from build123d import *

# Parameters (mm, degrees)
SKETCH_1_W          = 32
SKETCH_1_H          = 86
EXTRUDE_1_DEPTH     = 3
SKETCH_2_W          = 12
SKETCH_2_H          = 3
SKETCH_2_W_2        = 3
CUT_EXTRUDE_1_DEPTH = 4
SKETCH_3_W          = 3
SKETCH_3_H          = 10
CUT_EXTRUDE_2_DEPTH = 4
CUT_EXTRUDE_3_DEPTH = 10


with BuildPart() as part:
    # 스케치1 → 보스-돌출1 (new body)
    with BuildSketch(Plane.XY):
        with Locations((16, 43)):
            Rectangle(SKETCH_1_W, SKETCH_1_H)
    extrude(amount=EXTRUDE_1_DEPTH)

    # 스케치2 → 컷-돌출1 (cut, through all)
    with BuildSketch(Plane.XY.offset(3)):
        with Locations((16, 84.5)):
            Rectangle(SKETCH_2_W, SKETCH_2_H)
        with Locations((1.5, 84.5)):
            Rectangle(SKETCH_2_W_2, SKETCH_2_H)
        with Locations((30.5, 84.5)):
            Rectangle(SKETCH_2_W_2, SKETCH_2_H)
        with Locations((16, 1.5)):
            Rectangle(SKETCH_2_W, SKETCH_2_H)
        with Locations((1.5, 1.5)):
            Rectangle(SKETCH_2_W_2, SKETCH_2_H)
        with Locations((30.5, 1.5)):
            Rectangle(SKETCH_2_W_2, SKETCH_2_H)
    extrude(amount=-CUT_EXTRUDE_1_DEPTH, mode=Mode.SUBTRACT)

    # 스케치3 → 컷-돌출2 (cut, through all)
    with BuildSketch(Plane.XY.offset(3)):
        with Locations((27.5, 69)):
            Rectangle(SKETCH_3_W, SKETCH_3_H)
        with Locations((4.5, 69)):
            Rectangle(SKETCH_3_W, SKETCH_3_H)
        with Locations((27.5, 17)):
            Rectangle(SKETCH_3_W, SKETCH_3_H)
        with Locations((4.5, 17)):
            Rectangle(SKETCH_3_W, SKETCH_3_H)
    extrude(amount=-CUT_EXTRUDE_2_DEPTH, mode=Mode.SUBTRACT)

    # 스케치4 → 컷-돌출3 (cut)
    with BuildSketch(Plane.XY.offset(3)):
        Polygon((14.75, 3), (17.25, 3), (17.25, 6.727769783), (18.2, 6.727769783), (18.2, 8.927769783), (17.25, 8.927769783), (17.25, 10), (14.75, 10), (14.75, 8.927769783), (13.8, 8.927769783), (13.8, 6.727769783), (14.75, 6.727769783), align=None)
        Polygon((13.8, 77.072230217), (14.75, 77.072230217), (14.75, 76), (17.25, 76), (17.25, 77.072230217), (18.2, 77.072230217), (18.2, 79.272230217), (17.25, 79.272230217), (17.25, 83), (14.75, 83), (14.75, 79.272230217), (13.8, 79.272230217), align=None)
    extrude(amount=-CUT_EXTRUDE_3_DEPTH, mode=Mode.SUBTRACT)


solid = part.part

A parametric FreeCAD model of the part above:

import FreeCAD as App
import Part
import Sketcher

doc = App.newDocument("Part")
params = doc.addObject("Spreadsheet::Sheet", "Params")
for row, (alias, value) in enumerate([
    ("sketch1_width", "32 mm"),
    ("sketch1_height", "86 mm"),
    ("pad1_length", "3 mm"),
    ("sketch2_width", "12 mm"),
    ("sketch2_width2", "3 mm"),
    ("sketch3_width", "3 mm"),
    ("sketch3_height", "10 mm"),
    ("sketch4_width", "2.5 mm"),
    ("sketch4_height", "2.2 mm"),
    ("sketch4_width2", "0.95 mm"),
    ("pocket3_length", "10 mm"),
], start=1):
    params.set(f"A{row}", alias)
    params.set(f"B{row}", "=" + value)
    params.setAlias(f"B{row}", alias)

body = doc.addObject("PartDesign::Body", "Body")

sketch1 = body.newObject("Sketcher::SketchObject", "Sketch")
sketch1.AttachmentSupport = (doc.getObject("XY_Plane"), [""])
sketch1.MapMode = "FlatFace"
sketch1.addGeometry([
    Part.LineSegment(App.Vector(0, 86, 0), App.Vector(0, 0, 0)),
    Part.LineSegment(App.Vector(0, 0, 0), App.Vector(32, 0, 0)),
    Part.LineSegment(App.Vector(32, 0, 0), App.Vector(32, 86, 0)),
    Part.LineSegment(App.Vector(32, 86, 0), App.Vector(0, 86, 0)),
], False)
sketch1.addConstraint([
    Sketcher.Constraint("Coincident", 0, 2, 1, 1),
    Sketcher.Constraint("Coincident", 1, 2, 2, 1),
    Sketcher.Constraint("Coincident", 2, 2, 3, 1),
    Sketcher.Constraint("Coincident", 3, 2, 0, 1),
    Sketcher.Constraint("Vertical", 0),
    Sketcher.Constraint("Horizontal", 1),
    Sketcher.Constraint("Vertical", 2),
    Sketcher.Constraint("Horizontal", 3),
    Sketcher.Constraint("Coincident", 0, 2, -1, 1),
    Sketcher.Constraint("DistanceX", 1, 1, 1, 2, 32.0),
    Sketcher.Constraint("DistanceY", 0, 2, 0, 1, 86.0),
])
sketch1.setExpression("Constraints[9]", "Params.sketch1_width")
sketch1.setExpression("Constraints[10]", "Params.sketch1_height")
pad1 = body.newObject("PartDesign::Pad", "Pad")
pad1.Profile = sketch1
pad1.setExpression("Length", "Params.pad1_length")

sketch2 = body.newObject("Sketcher::SketchObject", "Sketch001")
sketch2.AttachmentSupport = (doc.getObject("XY_Plane"), [""])
sketch2.MapMode = "FlatFace"
sketch2.AttachmentOffset = App.Placement(App.Vector(0, 0, 3), App.Rotation())
sketch2.addGeometry([
    Part.LineSegment(App.Vector(10, 86, 0), App.Vector(10, 83, 0)),
    Part.LineSegment(App.Vector(10, 83, 0), App.Vector(22, 83, 0)),
    Part.LineSegment(App.Vector(22, 83, 0), App.Vector(22, 86, 0)),
    Part.LineSegment(App.Vector(22, 86, 0), App.Vector(10, 86, 0)),
    Part.LineSegment(App.Vector(0, 86, 0), App.Vector(0, 83, 0)),
    Part.LineSegment(App.Vector(0, 83, 0), App.Vector(3, 83, 0)),
    Part.LineSegment(App.Vector(3, 83, 0), App.Vector(3, 86, 0)),
    Part.LineSegment(App.Vector(3, 86, 0), App.Vector(0, 86, 0)),
    Part.LineSegment(App.Vector(29, 86, 0), App.Vector(29, 83, 0)),
    Part.LineSegment(App.Vector(29, 83, 0), App.Vector(32, 83, 0)),
    Part.LineSegment(App.Vector(32, 83, 0), App.Vector(32, 86, 0)),
    Part.LineSegment(App.Vector(32, 86, 0), App.Vector(29, 86, 0)),
    Part.LineSegment(App.Vector(10, 3, 0), App.Vector(10, 0, 0)),
    Part.LineSegment(App.Vector(10, 0, 0), App.Vector(22, 0, 0)),
    Part.LineSegment(App.Vector(22, 0, 0), App.Vector(22, 3, 0)),
    Part.LineSegment(App.Vector(22, 3, 0), App.Vector(10, 3, 0)),
    Part.LineSegment(App.Vector(0, 3, 0), App.Vector(0, 0, 0)),
    Part.LineSegment(App.Vector(0, 0, 0), App.Vector(3, 0, 0)),
    Part.LineSegment(App.Vector(3, 0, 0), App.Vector(3, 3, 0)),
    Part.LineSegment(App.Vector(3, 3, 0), App.Vector(0, 3, 0)),
    Part.LineSegment(App.Vector(29, 3, 0), App.Vector(29, 0, 0)),
    Part.LineSegment(App.Vector(29, 0, 0), App.Vector(32, 0, 0)),
    Part.LineSegment(App.Vector(32, 0, 0), App.Vector(32, 3, 0)),
    Part.LineSegment(App.Vector(32, 3, 0), App.Vector(29, 3, 0)),
], False)
sketch2.addConstraint([
    Sketcher.Constraint("Coincident", 0, 2, 1, 1),
    Sketcher.Constraint("Coincident", 1, 2, 2, 1),
    Sketcher.Constraint("Coincident", 2, 2, 3, 1),
    Sketcher.Constraint("Coincident", 3, 2, 0, 1),
    Sketcher.Constraint("Coincident", 4, 2, 5, 1),
    Sketcher.Constraint("Coincident", 5, 2, 6, 1),
    Sketcher.Constraint("Coincident", 6, 2, 7, 1),
    Sketcher.Constraint("Coincident", 7, 2, 4, 1),
    Sketcher.Constraint("Coincident", 8, 2, 9, 1),
    Sketcher.Constraint("Coincident", 9, 2, 10, 1),
    Sketcher.Constraint("Coincident", 10, 2, 11, 1),
    Sketcher.Constraint("Coincident", 11, 2, 8, 1),
    Sketcher.Constraint("Coincident", 12, 2, 13, 1),
    Sketcher.Constraint("Coincident", 13, 2, 14, 1),
    Sketcher.Constraint("Coincident", 14, 2, 15, 1),
    Sketcher.Constraint("Coincident", 15, 2, 12, 1),
    Sketcher.Constraint("Coincident", 16, 2, 17, 1),
    Sketcher.Constraint("Coincident", 17, 2, 18, 1),
    Sketcher.Constraint("Coincident", 18, 2, 19, 1),
    Sketcher.Constraint("Coincident", 19, 2, 16, 1),
    Sketcher.Constraint("Coincident", 20, 2, 21, 1),
    Sketcher.Constraint("Coincident", 21, 2, 22, 1),
    Sketcher.Constraint("Coincident", 22, 2, 23, 1),
    Sketcher.Constraint("Coincident", 23, 2, 20, 1),
    Sketcher.Constraint("Vertical", 0),
    Sketcher.Constraint("Horizontal", 1),
    Sketcher.Constraint("Vertical", 2),
    Sketcher.Constraint("Horizontal", 3),
    Sketcher.Constraint("Vertical", 4),
    Sketcher.Constraint("Horizontal", 5),
    Sketcher.Constraint("Vertical", 6),
    Sketcher.Constraint("Horizontal", 7),
    Sketcher.Constraint("Vertical", 8),
    Sketcher.Constraint("Horizontal", 9),
    Sketcher.Constraint("Vertical", 10),
    Sketcher.Constraint("Horizontal", 11),
    Sketcher.Constraint("Vertical", 12),
    Sketcher.Constraint("Horizontal", 13),
    Sketcher.Constraint("Vertical", 14),
    Sketcher.Constraint("Horizontal", 15),
    Sketcher.Constraint("Vertical", 16),
    Sketcher.Constraint("Horizontal", 17),
    Sketcher.Constraint("Vertical", 18),
    Sketcher.Constraint("Horizontal", 19),
    Sketcher.Constraint("Vertical", 20),
    Sketcher.Constraint("Horizontal", 21),
    Sketcher.Constraint("Vertical", 22),
    Sketcher.Constraint("Horizontal", 23),
    Sketcher.Constraint("Coincident", 16, 2, -1, 1),
    Sketcher.Constraint("PointOnObject", 4, 2, -2),
    Sketcher.Constraint("PointOnObject", 12, 2, -1),
    Sketcher.Constraint("PointOnObject", 20, 2, -1),
    Sketcher.Constraint("Horizontal", 1, 2, 4, 2),
    Sketcher.Constraint("Horizontal", 3, 2, 6, 2),
    Sketcher.Constraint("Horizontal", 5, 2, 8, 2),
    Sketcher.Constraint("Horizontal", 7, 2, 10, 2),
    Sketcher.Constraint("Horizontal", 15, 2, 18, 2),
    Sketcher.Constraint("Horizontal", 19, 2, 22, 2),
    Sketcher.Constraint("Vertical", 3, 2, 12, 2),
    Sketcher.Constraint("Vertical", 2, 2, 13, 2),
    Sketcher.Constraint("Vertical", 6, 2, 17, 2),
    Sketcher.Constraint("Vertical", 11, 2, 20, 2),
    Sketcher.Constraint("Vertical", 10, 2, 21, 2),
    Sketcher.Constraint("Equal", 7, 9),
    Sketcher.Constraint("Equal", 23, 0),
    Sketcher.Constraint("Equal", 10, 12),
    Sketcher.Constraint("DistanceX", 1, 1, 1, 2, 12.0),
    Sketcher.Constraint("DistanceX", 5, 1, 5, 2, 3.0),
    Sketcher.Constraint("DistanceX", -1, 1, 0, 2, 10.0),
    Sketcher.Constraint("DistanceY", -1, 1, 0, 2, 83.0),
    Sketcher.Constraint("DistanceX", -1, 1, 8, 2, 29.0),
])
sketch2.setExpression("Constraints[66]", "Params.sketch2_width")
sketch2.setExpression("Constraints[67]", "Params.sketch2_width2")
pocket1 = body.newObject("PartDesign::Pocket", "Pocket")
pocket1.Profile = sketch2
pocket1.Type = "ThroughAll"

sketch3 = body.newObject("Sketcher::SketchObject", "Sketch002")
sketch3.AttachmentSupport = (doc.getObject("XY_Plane"), [""])
sketch3.MapMode = "FlatFace"
sketch3.AttachmentOffset = App.Placement(App.Vector(0, 0, 3), App.Rotation())
sketch3.addGeometry([
    Part.LineSegment(App.Vector(26, 74, 0), App.Vector(26, 64, 0)),
    Part.LineSegment(App.Vector(26, 64, 0), App.Vector(29, 64, 0)),
    Part.LineSegment(App.Vector(29, 64, 0), App.Vector(29, 74, 0)),
    Part.LineSegment(App.Vector(29, 74, 0), App.Vector(26, 74, 0)),
    Part.LineSegment(App.Vector(3, 74, 0), App.Vector(3, 64, 0)),
    Part.LineSegment(App.Vector(3, 64, 0), App.Vector(6, 64, 0)),
    Part.LineSegment(App.Vector(6, 64, 0), App.Vector(6, 74, 0)),
    Part.LineSegment(App.Vector(6, 74, 0), App.Vector(3, 74, 0)),
    Part.LineSegment(App.Vector(26, 22, 0), App.Vector(26, 12, 0)),
    Part.LineSegment(App.Vector(26, 12, 0), App.Vector(29, 12, 0)),
    Part.LineSegment(App.Vector(29, 12, 0), App.Vector(29, 22, 0)),
    Part.LineSegment(App.Vector(29, 22, 0), App.Vector(26, 22, 0)),
    Part.LineSegment(App.Vector(3, 22, 0), App.Vector(3, 12, 0)),
    Part.LineSegment(App.Vector(3, 12, 0), App.Vector(6, 12, 0)),
    Part.LineSegment(App.Vector(6, 12, 0), App.Vector(6, 22, 0)),
    Part.LineSegment(App.Vector(6, 22, 0), App.Vector(3, 22, 0)),
], False)
sketch3.addConstraint([
    Sketcher.Constraint("Coincident", 0, 2, 1, 1),
    Sketcher.Constraint("Coincident", 1, 2, 2, 1),
    Sketcher.Constraint("Coincident", 2, 2, 3, 1),
    Sketcher.Constraint("Coincident", 3, 2, 0, 1),
    Sketcher.Constraint("Coincident", 4, 2, 5, 1),
    Sketcher.Constraint("Coincident", 5, 2, 6, 1),
    Sketcher.Constraint("Coincident", 6, 2, 7, 1),
    Sketcher.Constraint("Coincident", 7, 2, 4, 1),
    Sketcher.Constraint("Coincident", 8, 2, 9, 1),
    Sketcher.Constraint("Coincident", 9, 2, 10, 1),
    Sketcher.Constraint("Coincident", 10, 2, 11, 1),
    Sketcher.Constraint("Coincident", 11, 2, 8, 1),
    Sketcher.Constraint("Coincident", 12, 2, 13, 1),
    Sketcher.Constraint("Coincident", 13, 2, 14, 1),
    Sketcher.Constraint("Coincident", 14, 2, 15, 1),
    Sketcher.Constraint("Coincident", 15, 2, 12, 1),
    Sketcher.Constraint("Vertical", 0),
    Sketcher.Constraint("Horizontal", 1),
    Sketcher.Constraint("Vertical", 2),
    Sketcher.Constraint("Horizontal", 3),
    Sketcher.Constraint("Vertical", 4),
    Sketcher.Constraint("Horizontal", 5),
    Sketcher.Constraint("Vertical", 6),
    Sketcher.Constraint("Horizontal", 7),
    Sketcher.Constraint("Vertical", 8),
    Sketcher.Constraint("Horizontal", 9),
    Sketcher.Constraint("Vertical", 10),
    Sketcher.Constraint("Horizontal", 11),
    Sketcher.Constraint("Vertical", 12),
    Sketcher.Constraint("Horizontal", 13),
    Sketcher.Constraint("Vertical", 14),
    Sketcher.Constraint("Horizontal", 15),
    Sketcher.Constraint("Horizontal", 1, 2, 4, 2),
    Sketcher.Constraint("Horizontal", 3, 2, 6, 2),
    Sketcher.Constraint("Horizontal", 9, 2, 12, 2),
    Sketcher.Constraint("Horizontal", 11, 2, 14, 2),
    Sketcher.Constraint("Vertical", 3, 2, 8, 2),
    Sketcher.Constraint("Vertical", 2, 2, 9, 2),
    Sketcher.Constraint("Vertical", 7, 2, 12, 2),
    Sketcher.Constraint("Vertical", 6, 2, 13, 2),
    Sketcher.Constraint("Equal", 3, 5),
    Sketcher.Constraint("Equal", 6, 8),
    Sketcher.Constraint("DistanceX", 1, 1, 1, 2, 3.0),
    Sketcher.Constraint("DistanceY", 0, 2, 0, 1, 10.0),
    Sketcher.Constraint("DistanceX", -1, 1, 0, 2, 26.0),
    Sketcher.Constraint("DistanceY", -1, 1, 0, 2, 64.0),
    Sketcher.Constraint("DistanceX", -1, 1, 4, 2, 3.0),
    Sketcher.Constraint("DistanceY", -1, 1, 8, 2, 12.0),
])
sketch3.setExpression("Constraints[42]", "Params.sketch3_width")
sketch3.setExpression("Constraints[43]", "Params.sketch3_height")
pocket2 = body.newObject("PartDesign::Pocket", "Pocket001")
pocket2.Profile = sketch3
pocket2.Type = "ThroughAll"

sketch4 = body.newObject("Sketcher::SketchObject", "Sketch003")
sketch4.AttachmentSupport = (doc.getObject("XY_Plane"), [""])
sketch4.MapMode = "FlatFace"
sketch4.AttachmentOffset = App.Placement(App.Vector(0, 0, 3), App.Rotation())
sketch4.addGeometry([
    Part.LineSegment(App.Vector(14.75, 3, 0), App.Vector(17.25, 3, 0)),
    Part.LineSegment(App.Vector(17.25, 3, 0), App.Vector(17.25, 6.72777, 0)),
    Part.LineSegment(App.Vector(17.25, 6.72777, 0), App.Vector(18.2, 6.72777, 0)),
    Part.LineSegment(App.Vector(18.2, 6.72777, 0), App.Vector(18.2, 8.92777, 0)),
    Part.LineSegment(App.Vector(18.2, 8.92777, 0), App.Vector(17.25, 8.92777, 0)),
    Part.LineSegment(App.Vector(17.25, 8.92777, 0), App.Vector(17.25, 10, 0)),
    Part.LineSegment(App.Vector(17.25, 10, 0), App.Vector(14.75, 10, 0)),
    Part.LineSegment(App.Vector(14.75, 10, 0), App.Vector(14.75, 8.92777, 0)),
    Part.LineSegment(App.Vector(14.75, 8.92777, 0), App.Vector(13.8, 8.92777, 0)),
    Part.LineSegment(App.Vector(13.8, 8.92777, 0), App.Vector(13.8, 6.72777, 0)),
    Part.LineSegment(App.Vector(13.8, 6.72777, 0), App.Vector(14.75, 6.72777, 0)),
    Part.LineSegment(App.Vector(14.75, 6.72777, 0), App.Vector(14.75, 3, 0)),
    Part.LineSegment(App.Vector(13.8, 77.07223, 0), App.Vector(14.75, 77.07223, 0)),
    Part.LineSegment(App.Vector(14.75, 77.07223, 0), App.Vector(14.75, 76, 0)),
    Part.LineSegment(App.Vector(14.75, 76, 0), App.Vector(17.25, 76, 0)),
    Part.LineSegment(App.Vector(17.25, 76, 0), App.Vector(17.25, 77.07223, 0)),
    Part.LineSegment(App.Vector(17.25, 77.07223, 0), App.Vector(18.2, 77.07223, 0)),
    Part.LineSegment(App.Vector(18.2, 77.07223, 0), App.Vector(18.2, 79.27223, 0)),
    Part.LineSegment(App.Vector(18.2, 79.27223, 0), App.Vector(17.25, 79.27223, 0)),
    Part.LineSegment(App.Vector(17.25, 79.27223, 0), App.Vector(17.25, 83, 0)),
    Part.LineSegment(App.Vector(17.25, 83, 0), App.Vector(14.75, 83, 0)),
    Part.LineSegment(App.Vector(14.75, 83, 0), App.Vector(14.75, 79.27223, 0)),
    Part.LineSegment(App.Vector(14.75, 79.27223, 0), App.Vector(13.8, 79.27223, 0)),
    Part.LineSegment(App.Vector(13.8, 79.27223, 0), App.Vector(13.8, 77.07223, 0)),
], False)
sketch4.addConstraint([
    Sketcher.Constraint("Coincident", 0, 2, 1, 1),
    Sketcher.Constraint("Coincident", 1, 2, 2, 1),
    Sketcher.Constraint("Coincident", 2, 2, 3, 1),
    Sketcher.Constraint("Coincident", 3, 2, 4, 1),
    Sketcher.Constraint("Coincident", 4, 2, 5, 1),
    Sketcher.Constraint("Coincident", 5, 2, 6, 1),
    Sketcher.Constraint("Coincident", 6, 2, 7, 1),
    Sketcher.Constraint("Coincident", 7, 2, 8, 1),
    Sketcher.Constraint("Coincident", 8, 2, 9, 1),
    Sketcher.Constraint("Coincident", 9, 2, 10, 1),
    Sketcher.Constraint("Coincident", 10, 2, 11, 1),
    Sketcher.Constraint("Coincident", 11, 2, 0, 1),
    Sketcher.Constraint("Coincident", 12, 2, 13, 1),
    Sketcher.Constraint("Coincident", 13, 2, 14, 1),
    Sketcher.Constraint("Coincident", 14, 2, 15, 1),
    Sketcher.Constraint("Coincident", 15, 2, 16, 1),
    Sketcher.Constraint("Coincident", 16, 2, 17, 1),
    Sketcher.Constraint("Coincident", 17, 2, 18, 1),
    Sketcher.Constraint("Coincident", 18, 2, 19, 1),
    Sketcher.Constraint("Coincident", 19, 2, 20, 1),
    Sketcher.Constraint("Coincident", 20, 2, 21, 1),
    Sketcher.Constraint("Coincident", 21, 2, 22, 1),
    Sketcher.Constraint("Coincident", 22, 2, 23, 1),
    Sketcher.Constraint("Coincident", 23, 2, 12, 1),
    Sketcher.Constraint("Horizontal", 0),
    Sketcher.Constraint("Vertical", 1),
    Sketcher.Constraint("Horizontal", 2),
    Sketcher.Constraint("Vertical", 3),
    Sketcher.Constraint("Horizontal", 4),
    Sketcher.Constraint("Vertical", 5),
    Sketcher.Constraint("Horizontal", 6),
    Sketcher.Constraint("Vertical", 7),
    Sketcher.Constraint("Horizontal", 8),
    Sketcher.Constraint("Vertical", 9),
    Sketcher.Constraint("Horizontal", 10),
    Sketcher.Constraint("Vertical", 11),
    Sketcher.Constraint("Horizontal", 12),
    Sketcher.Constraint("Vertical", 13),
    Sketcher.Constraint("Horizontal", 14),
    Sketcher.Constraint("Vertical", 15),
    Sketcher.Constraint("Horizontal", 16),
    Sketcher.Constraint("Vertical", 17),
    Sketcher.Constraint("Horizontal", 18),
    Sketcher.Constraint("Vertical", 19),
    Sketcher.Constraint("Horizontal", 20),
    Sketcher.Constraint("Vertical", 21),
    Sketcher.Constraint("Horizontal", 22),
    Sketcher.Constraint("Vertical", 23),
    Sketcher.Constraint("Horizontal", 4, 2, 7, 2),
    Sketcher.Constraint("Horizontal", 2, 2, 9, 2),
    Sketcher.Constraint("Horizontal", 12, 2, 15, 2),
    Sketcher.Constraint("Horizontal", 18, 2, 21, 2),
    Sketcher.Constraint("Vertical", 1, 2, 4, 2),
    Sketcher.Constraint("Vertical", 7, 2, 10, 2),
    Sketcher.Constraint("Vertical", 11, 2, 12, 2),
    Sketcher.Constraint("Vertical", 5, 2, 14, 2),
    Sketcher.Constraint("Vertical", 3, 2, 16, 2),
    Sketcher.Constraint("Vertical", 15, 2, 18, 2),
    Sketcher.Constraint("Vertical", 13, 2, 20, 2),
    Sketcher.Constraint("Vertical", 9, 2, 22, 2),
    Sketcher.Constraint("Equal", 4, 8),
    Sketcher.Constraint("Equal", 7, 13),
    Sketcher.Constraint("Equal", 9, 17),
    Sketcher.Constraint("Equal", 11, 19),
    Sketcher.Constraint("DistanceX", 0, 1, 0, 2, 2.5),
    Sketcher.Constraint("DistanceY", 3, 1, 3, 2, 2.2),
    Sketcher.Constraint("DistanceY", -1, 1, 0, 2, 3.0),
    Sketcher.Constraint("DistanceY", -1, 1, 5, 2, 10.0),
    Sketcher.Constraint("DistanceY", -1, 1, 13, 2, 76.0),
    Sketcher.Constraint("DistanceX", 2, 1, 2, 2, 0.95),
    Sketcher.Constraint("DistanceX", -1, 1, 2, 2, 18.2),
    Sketcher.Constraint("DistanceY", 1, 1, 1, 2, 3.72777),
])
sketch4.setExpression("Constraints[64]", "Params.sketch4_width")
sketch4.setExpression("Constraints[65]", "Params.sketch4_height")
sketch4.setExpression("Constraints[69]", "Params.sketch4_width2")
pocket3 = body.newObject("PartDesign::Pocket", "Pocket002")
pocket3.Profile = sketch4
pocket3.setExpression("Length", "Params.pocket3_length")

doc.recompute()
